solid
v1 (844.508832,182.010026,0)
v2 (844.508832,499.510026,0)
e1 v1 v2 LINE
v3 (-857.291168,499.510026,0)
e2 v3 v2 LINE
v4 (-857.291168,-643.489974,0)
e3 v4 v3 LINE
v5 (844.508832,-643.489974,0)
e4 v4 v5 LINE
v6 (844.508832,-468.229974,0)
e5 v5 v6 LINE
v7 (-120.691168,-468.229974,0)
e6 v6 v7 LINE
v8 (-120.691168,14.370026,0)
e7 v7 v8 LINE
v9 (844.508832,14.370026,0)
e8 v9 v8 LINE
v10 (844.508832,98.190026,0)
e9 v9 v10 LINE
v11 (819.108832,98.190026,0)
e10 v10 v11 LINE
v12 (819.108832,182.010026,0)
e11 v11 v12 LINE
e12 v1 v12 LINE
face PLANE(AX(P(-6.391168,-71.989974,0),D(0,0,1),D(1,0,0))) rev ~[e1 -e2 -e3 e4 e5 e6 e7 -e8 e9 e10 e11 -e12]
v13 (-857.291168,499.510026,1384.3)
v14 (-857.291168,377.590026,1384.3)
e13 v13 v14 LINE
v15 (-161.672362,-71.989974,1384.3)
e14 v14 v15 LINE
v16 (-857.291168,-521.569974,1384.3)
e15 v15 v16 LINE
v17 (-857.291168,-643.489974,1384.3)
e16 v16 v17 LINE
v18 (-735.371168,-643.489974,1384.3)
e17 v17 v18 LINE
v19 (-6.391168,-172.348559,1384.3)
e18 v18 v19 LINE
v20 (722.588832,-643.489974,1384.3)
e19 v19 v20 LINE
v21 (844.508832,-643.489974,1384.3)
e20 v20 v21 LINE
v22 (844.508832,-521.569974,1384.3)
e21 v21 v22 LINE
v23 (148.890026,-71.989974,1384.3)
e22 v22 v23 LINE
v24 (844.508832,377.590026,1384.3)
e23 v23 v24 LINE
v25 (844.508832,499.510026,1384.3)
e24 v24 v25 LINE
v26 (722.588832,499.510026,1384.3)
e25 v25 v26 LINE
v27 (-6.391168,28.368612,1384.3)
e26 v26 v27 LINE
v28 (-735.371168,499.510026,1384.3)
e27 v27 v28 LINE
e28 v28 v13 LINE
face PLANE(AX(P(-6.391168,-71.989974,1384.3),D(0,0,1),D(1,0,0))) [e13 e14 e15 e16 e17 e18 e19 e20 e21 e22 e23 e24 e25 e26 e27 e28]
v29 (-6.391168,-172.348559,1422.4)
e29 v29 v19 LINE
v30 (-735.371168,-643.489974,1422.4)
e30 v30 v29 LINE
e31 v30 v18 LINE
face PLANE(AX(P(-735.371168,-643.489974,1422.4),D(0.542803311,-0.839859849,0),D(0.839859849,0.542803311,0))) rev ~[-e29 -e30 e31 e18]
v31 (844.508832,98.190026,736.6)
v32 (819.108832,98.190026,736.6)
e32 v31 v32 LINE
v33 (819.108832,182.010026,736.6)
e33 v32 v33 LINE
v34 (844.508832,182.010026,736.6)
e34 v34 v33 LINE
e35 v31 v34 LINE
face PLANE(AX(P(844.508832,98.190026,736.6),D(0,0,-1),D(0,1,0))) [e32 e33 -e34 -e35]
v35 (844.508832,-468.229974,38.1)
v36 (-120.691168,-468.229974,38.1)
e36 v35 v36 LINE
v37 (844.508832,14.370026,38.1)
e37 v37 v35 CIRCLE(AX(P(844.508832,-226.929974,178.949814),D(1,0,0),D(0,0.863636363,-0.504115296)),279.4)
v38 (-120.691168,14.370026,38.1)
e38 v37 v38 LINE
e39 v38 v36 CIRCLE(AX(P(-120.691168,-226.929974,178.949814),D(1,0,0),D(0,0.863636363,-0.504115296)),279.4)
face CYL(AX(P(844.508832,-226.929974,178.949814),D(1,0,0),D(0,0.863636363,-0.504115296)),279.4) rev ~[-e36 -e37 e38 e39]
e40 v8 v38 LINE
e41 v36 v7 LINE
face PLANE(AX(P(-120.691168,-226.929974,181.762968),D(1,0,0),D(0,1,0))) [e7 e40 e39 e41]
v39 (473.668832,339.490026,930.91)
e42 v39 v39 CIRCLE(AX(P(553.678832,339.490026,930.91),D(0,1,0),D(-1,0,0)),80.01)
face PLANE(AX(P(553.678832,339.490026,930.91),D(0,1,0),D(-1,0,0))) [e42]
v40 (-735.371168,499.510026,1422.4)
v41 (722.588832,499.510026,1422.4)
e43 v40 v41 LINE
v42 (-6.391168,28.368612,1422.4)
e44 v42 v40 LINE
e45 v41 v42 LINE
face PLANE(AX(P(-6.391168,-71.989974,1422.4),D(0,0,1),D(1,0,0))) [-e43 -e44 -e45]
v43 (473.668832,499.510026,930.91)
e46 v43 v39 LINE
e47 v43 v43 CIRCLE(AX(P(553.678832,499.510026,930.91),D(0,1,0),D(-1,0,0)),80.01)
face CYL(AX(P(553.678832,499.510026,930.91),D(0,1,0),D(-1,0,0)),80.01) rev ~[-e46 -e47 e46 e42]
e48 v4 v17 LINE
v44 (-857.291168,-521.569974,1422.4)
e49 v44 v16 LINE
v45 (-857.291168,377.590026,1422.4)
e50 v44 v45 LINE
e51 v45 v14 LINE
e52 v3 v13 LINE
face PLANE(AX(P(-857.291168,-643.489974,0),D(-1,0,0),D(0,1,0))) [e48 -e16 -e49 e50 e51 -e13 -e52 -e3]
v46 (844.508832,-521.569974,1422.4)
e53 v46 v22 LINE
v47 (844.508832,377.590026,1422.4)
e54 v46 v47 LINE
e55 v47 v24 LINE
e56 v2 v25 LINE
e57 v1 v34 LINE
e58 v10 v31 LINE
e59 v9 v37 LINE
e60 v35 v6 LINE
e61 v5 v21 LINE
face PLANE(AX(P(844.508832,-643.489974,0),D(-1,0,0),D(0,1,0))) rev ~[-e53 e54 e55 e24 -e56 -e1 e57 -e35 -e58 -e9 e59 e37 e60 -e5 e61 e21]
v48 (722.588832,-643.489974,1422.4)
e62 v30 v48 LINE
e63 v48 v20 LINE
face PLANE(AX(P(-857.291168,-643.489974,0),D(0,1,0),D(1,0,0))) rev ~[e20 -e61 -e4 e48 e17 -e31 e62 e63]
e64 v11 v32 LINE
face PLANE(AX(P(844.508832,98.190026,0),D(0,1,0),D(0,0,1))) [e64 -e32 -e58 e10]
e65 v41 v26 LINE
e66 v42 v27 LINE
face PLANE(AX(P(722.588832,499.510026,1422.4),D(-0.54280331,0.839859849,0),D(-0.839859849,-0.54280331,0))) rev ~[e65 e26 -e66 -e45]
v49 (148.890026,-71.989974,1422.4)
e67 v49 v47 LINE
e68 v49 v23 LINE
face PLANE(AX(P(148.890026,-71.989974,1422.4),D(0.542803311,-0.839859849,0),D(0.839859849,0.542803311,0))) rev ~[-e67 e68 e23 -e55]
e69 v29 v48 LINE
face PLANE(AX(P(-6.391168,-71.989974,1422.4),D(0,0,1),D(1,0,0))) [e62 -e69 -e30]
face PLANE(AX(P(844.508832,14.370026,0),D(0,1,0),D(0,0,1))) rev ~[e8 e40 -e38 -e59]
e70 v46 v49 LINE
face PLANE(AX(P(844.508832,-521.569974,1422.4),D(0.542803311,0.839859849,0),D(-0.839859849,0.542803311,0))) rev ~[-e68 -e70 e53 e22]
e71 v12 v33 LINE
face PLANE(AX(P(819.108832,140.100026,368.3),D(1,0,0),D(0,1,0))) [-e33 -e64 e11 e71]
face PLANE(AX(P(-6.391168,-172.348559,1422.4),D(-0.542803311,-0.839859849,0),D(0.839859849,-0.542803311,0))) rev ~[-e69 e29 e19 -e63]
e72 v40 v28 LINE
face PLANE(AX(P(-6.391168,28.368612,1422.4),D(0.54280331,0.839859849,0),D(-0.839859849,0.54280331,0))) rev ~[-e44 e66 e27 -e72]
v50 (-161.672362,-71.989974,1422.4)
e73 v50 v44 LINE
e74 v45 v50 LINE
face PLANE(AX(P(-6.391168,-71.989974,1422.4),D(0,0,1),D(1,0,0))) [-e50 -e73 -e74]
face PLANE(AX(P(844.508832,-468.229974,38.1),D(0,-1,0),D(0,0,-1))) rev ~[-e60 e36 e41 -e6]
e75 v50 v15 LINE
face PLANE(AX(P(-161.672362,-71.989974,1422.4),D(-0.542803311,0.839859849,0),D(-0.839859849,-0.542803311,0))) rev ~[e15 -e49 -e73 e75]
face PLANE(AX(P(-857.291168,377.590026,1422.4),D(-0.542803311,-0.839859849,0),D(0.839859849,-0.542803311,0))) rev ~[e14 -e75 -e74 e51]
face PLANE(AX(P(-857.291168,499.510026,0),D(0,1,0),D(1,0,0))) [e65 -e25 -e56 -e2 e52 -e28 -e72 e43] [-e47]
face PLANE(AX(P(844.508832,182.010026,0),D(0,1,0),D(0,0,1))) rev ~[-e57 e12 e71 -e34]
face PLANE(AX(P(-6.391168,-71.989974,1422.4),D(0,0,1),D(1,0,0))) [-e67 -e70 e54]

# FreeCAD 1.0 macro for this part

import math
import FreeCAD as App
import Part
import Sketcher

V = App.Vector
Q = App.Units.Quantity


def add_polygon(sketch, points):
    """Adds a closed chain of lines whose ends are joined by coincident constraints."""
    first, n = sketch.GeometryCount, len(points)
    for a, b in zip(points, points[1:] + points[:1]):
        sketch.addGeometry(Part.LineSegment(App.Vector(*a, 0), App.Vector(*b, 0)), False)
    for i in range(n):
        sketch.addConstraint(Sketcher.Constraint("Coincident", first + i, 2, first + (i + 1) % n, 1))

doc = App.newDocument("Part")
body = doc.addObject("PartDesign::Body", "Body")

sketch1 = body.newObject("Sketcher::SketchObject", "Sketch")
sketch1.AttachmentSupport = (doc.getObject("XY_Plane"), [""])
sketch1.MapMode = "FlatFace"
add_polygon(sketch1, [(-857.291168, 499.510026), (-857.291168, -643.489974), (844.508832, -643.489974), (844.508832, 499.510026)])
sketch1.addConstraint([
    Sketcher.Constraint("Vertical", 0),
    Sketcher.Constraint("Horizontal", 1),
    Sketcher.Constraint("Vertical", 2),
    Sketcher.Constraint("Horizontal", 3),
    Sketcher.Constraint("DistanceX", 1, 1, 1, 2, Q("67 in")),
    Sketcher.Constraint("DistanceY", 0, 2, 0, 1, Q("45 in")),
    Sketcher.Constraint("DistanceX", 0, 2, -1, 1, Q("857.291168 mm")),
    Sketcher.Constraint("DistanceY", 0, 2, -1, 1, Q("643.489974 mm")),
])
pad1 = body.newObject("PartDesign::Pad", "Pad")
pad1.Profile = sketch1
pad1.Length = Q("56 in")

sketch2 = body.newObject("Sketcher::SketchObject", "Sketch001")
sketch2.AttachmentSupport = (doc.getObject("XZ_Plane"), [""])
sketch2.MapMode = "FlatFace"
sketch2.AttachmentOffset = App.Placement(V(0, 0, -499.510026), App.Rotation())
sketch2.addGeometry(Part.Circle(V(553.678832, 930.91, 0), V(0, 0, 1), 80.01), False)
sketch2.addConstraint([
    Sketcher.Constraint("Diameter", 0, Q("6.3 in")),
    Sketcher.Constraint("DistanceY", -1, 1, 0, 3, Q("36.65 in")),
    Sketcher.Constraint("DistanceX", -1, 1, 0, 3, Q("553.678832 mm")),
])
pocket1 = body.newObject("PartDesign::Pocket", "Pocket")
pocket1.Profile = sketch2
pocket1.Length = Q("6.3 in")
pocket1.Reversed = True

sketch3 = body.newObject("Sketcher::SketchObject", "Sketch002")
sketch3.AttachmentSupport = (doc.getObject("XY_Plane"), [""])
sketch3.MapMode = "FlatFace"
sketch3.AttachmentOffset = App.Placement(V(0, 0, 56 * 25.4), App.Rotation())
add_polygon(sketch3, [(-857.291168, -643.489974), (-735.371168, -643.489974), (-6.391168, -172.348559), (722.588832, -643.489974), (844.508832, -643.489974), (844.508832, -521.569974), (148.890026, -71.989974), (844.508832, 377.590026), (844.508832, 499.510026), (722.588832, 499.510026), (-6.391168, 28.368612), (-735.371168, 499.510026), (-857.291168, 499.510026), (-857.291168, 377.590026), (-161.672362, -71.989974), (-857.291168, -521.569974)])
sketch3.addConstraint([
    Sketcher.Constraint("Horizontal", 0),
    Sketcher.Constraint("Horizontal", 3),
    Sketcher.Constraint("Vertical", 4),
    Sketcher.Constraint("Vertical", 7),
    Sketcher.Constraint("Horizontal", 8),
    Sketcher.Constraint("Horizontal", 11),
    Sketcher.Constraint("Vertical", 12),
    Sketcher.Constraint("Vertical", 15),
    Sketcher.Constraint("Parallel", 2, 5),
    Sketcher.Constraint("Parallel", 1, 6),
    Sketcher.Constraint("Parallel", 6, 9),
    Sketcher.Constraint("Parallel", 5, 10),
    Sketcher.Constraint("Parallel", 10, 13),
    Sketcher.Constraint("Parallel", 9, 14),
    Sketcher.Constraint("Horizontal", 0, 2, 2, 2),
    Sketcher.Constraint("Horizontal", 8, 2, 10, 2),
    Sketcher.Constraint("Horizontal", 6, 2, 12, 2),
    Sketcher.Constraint("Horizontal", 5, 2, 13, 2),
    Sketcher.Constraint("Horizontal", 4, 2, 14, 2),
    Sketcher.Constraint("Vertical", 4, 2, 6, 2),
    Sketcher.Constraint("Vertical", 2, 2, 8, 2),
    Sketcher.Constraint("Vertical", 1, 2, 9, 2),
    Sketcher.Constraint("Vertical", 0, 2, 10, 2),
    Sketcher.Constraint("Equal", 0, 3),
    Sketcher.Constraint("Equal", 11, 4),
    Sketcher.Constraint("Equal", 4, 7),
    Sketcher.Constraint("DistanceX", 0, 1, 0, 2, Q("4.8 in")),
    Sketcher.Constraint("DistanceY", 3, 2, 7, 2, Q("45 in")),
    Sketcher.Constraint("DistanceX", 0, 2, 1, 2, Q("28.7 in")),
    Sketcher.Constraint("DistanceX", 0, 2, -1, 1, Q("735.371168 mm")),
    Sketcher.Constraint("DistanceY", 1, 2, -1, 1, Q("172.348559 mm")),
    Sketcher.Constraint("DistanceY", -1, 1, 9, 2, Q("28.368612 mm")),
])
pocket2 = body.newObject("PartDesign::Pocket", "Pocket001")
pocket2.Profile = sketch3
pocket2.Length = Q("1.5 in")

sketch4 = body.newObject("Sketcher::SketchObject", "Sketch003")
sketch4.AttachmentSupport = (doc.getObject("YZ_Plane"), [""])
sketch4.MapMode = "FlatFace"
sketch4.AttachmentOffset = App.Placement(V(0, 0, 844.508832), App.Rotation())
add_polygon(sketch4, [(98.190026, 736.6), (98.190026, 0), (182.010026, 0), (182.010026, 736.6)])
sketch4.addConstraint([
    Sketcher.Constraint("Vertical", 0),
    Sketcher.Constraint("Horizontal", 1),
    Sketcher.Constraint("Vertical", 2),
    Sketcher.Constraint("Horizontal", 3),
    Sketcher.Constraint("PointOnObject", 0, 2, -1),
    Sketcher.Constraint("DistanceY", 0, 2, 0, 1, Q("29 in")),
    Sketcher.Constraint("DistanceX", 1, 1, 1, 2, Q("3.3 in")),
    Sketcher.Constraint("DistanceX", -1, 1, 0, 2, Q("98.190026 mm")),
])
pocket3 = body.newObject("PartDesign::Pocket", "Pocket002")
pocket3.Profile = sketch4
pocket3.Length = Q("1 in")

sketch5 = body.newObject("Sketcher::SketchObject", "Sketch004")
sketch5.AttachmentSupport = (doc.getObject("YZ_Plane"), [""])
sketch5.MapMode = "FlatFace"
sketch5.AttachmentOffset = App.Placement(V(0, 0, 844.508832), App.Rotation())
sketch5.addGeometry([
    Part.LineSegment(V(14.370026, 0, 0), V(14.370026, 38.1, 0)),
    Part.ArcOfCircle(Part.Circle(V(-226.929974, 178.949814, 0), V(0, 0, 1), 279.4), math.radians(-30.272641), math.radians(210.272641)),
    Part.LineSegment(V(-468.229974, 38.1, 0), V(-468.229974, 0, 0)),
    Part.LineSegment(V(-468.229974, 0, 0), V(14.370026, 0, 0)),
], False)
sketch5.addConstraint([
    Sketcher.Constraint("Coincident", 0, 2, 1, 1),
    Sketcher.Constraint("Coincident", 1, 2, 2, 1),
    Sketcher.Constraint("Coincident", 2, 2, 3, 1),
    Sketcher.Constraint("Coincident", 3, 2, 0, 1),
    Sketcher.Constraint("Vertical", 0),
    Sketcher.Constraint("Vertical", 2),
    Sketcher.Constraint("Horizontal", 3),
    Sketcher.Constraint("PointOnObject", 2, 2, -1),
    Sketcher.Constraint("Horizontal", 0, 2, 1, 2),
    Sketcher.Constraint("Radius", 1, Q("11 in")),
    Sketcher.Constraint("DistanceX", 3, 1, 3, 2, Q("19 in")),
    Sketcher.Constraint("DistanceY", 0, 1, 0, 2, Q("1.5 in")),
    Sketcher.Constraint("DistanceX", 1, 3, -1, 1, Q("226.929974 mm")),
])
pocket4 = body.newObject("PartDesign::Pocket", "Pocket003")
pocket4.Profile = sketch5
pocket4.Length = Q("38 in")

doc.recompute()
